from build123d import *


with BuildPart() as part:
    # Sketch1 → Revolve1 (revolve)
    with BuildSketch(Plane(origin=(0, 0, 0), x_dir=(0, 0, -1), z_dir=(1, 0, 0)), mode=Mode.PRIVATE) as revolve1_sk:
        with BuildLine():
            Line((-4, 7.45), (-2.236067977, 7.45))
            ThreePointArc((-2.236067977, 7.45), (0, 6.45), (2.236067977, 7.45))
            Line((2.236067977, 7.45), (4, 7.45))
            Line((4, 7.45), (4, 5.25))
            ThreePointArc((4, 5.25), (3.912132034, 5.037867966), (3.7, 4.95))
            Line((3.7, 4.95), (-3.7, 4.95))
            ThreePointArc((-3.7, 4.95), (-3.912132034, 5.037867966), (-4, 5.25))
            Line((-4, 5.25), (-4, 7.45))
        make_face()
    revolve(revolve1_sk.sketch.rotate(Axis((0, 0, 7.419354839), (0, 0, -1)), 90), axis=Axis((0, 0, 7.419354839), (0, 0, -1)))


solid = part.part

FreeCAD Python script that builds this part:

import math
import FreeCAD as App
import Part
import Sketcher
from FreeCAD import Vector

doc = App.newDocument("Part")
body = doc.addObject("PartDesign::Body", "Body")

# Sketch on YZ plane
sketch1 = body.newObject("Sketcher::SketchObject", "Sketch")
sketch1.AttachmentSupport = (doc.getObject("YZ_Plane"), [""])
sketch1.MapMode = "FlatFace"
sketch1.addGeometry(Part.LineSegment(Vector(7.45, 2.24, 0), Vector(7.45, 4, 0)), False)
sketch1.addGeometry(Part.LineSegment(Vector(7.45, 4, 0), Vector(5.25, 4, 0)), False)
sketch1.addGeometry(Part.ArcOfCircle(Part.Circle(Vector(5.25, 3.7, 0), Vector(0, 0, 1), 0.3), math.radians(90), math.radians(180)), False)
sketch1.addGeometry(Part.LineSegment(Vector(4.95, 3.7, 0), Vector(4.95, -3.7, 0)), False)
sketch1.addGeometry(Part.ArcOfCircle(Part.Circle(Vector(5.25, -3.7, 0), Vector(0, 0, 1), 0.3), math.radians(-180), math.radians(-90)), False)
sketch1.addGeometry(Part.LineSegment(Vector(5.25, -4, 0), Vector(7.45, -4, 0)), False)
sketch1.addGeometry(Part.LineSegment(Vector(7.45, -4, 0), Vector(7.45, -2.24, 0)), False)
sketch1.addGeometry(Part.ArcOfCircle(Part.Circle(Vector(9.45, 0, 0), Vector(0, 0, 1), 3), math.radians(132), math.radians(228)), False)
sketch1.addConstraint(Sketcher.Constraint("Coincident", 0, 2, 1, 1))
sketch1.addConstraint(Sketcher.Constraint("Tangent", 1, 2, 2, 1))
sketch1.addConstraint(Sketcher.Constraint("Tangent", 2, 2, 3, 1))
sketch1.addConstraint(Sketcher.Constraint("Tangent", 3, 2, 4, 1))
sketch1.addConstraint(Sketcher.Constraint("Tangent", 4, 2, 5, 1))
sketch1.addConstraint(Sketcher.Constraint("Coincident", 5, 2, 6, 1))
sketch1.addConstraint(Sketcher.Constraint("Coincident", 6, 2, 7, 2))
sketch1.addConstraint(Sketcher.Constraint("Coincident", 7, 1, 0, 1))
sketch1.addConstraint(Sketcher.Constraint("Vertical", 0))
sketch1.addConstraint(Sketcher.Constraint("Horizontal", 1))
sketch1.addConstraint(Sketcher.Constraint("Vertical", 3))
sketch1.addConstraint(Sketcher.Constraint("Horizontal", 5))
sketch1.addConstraint(Sketcher.Constraint("Vertical", 6))
sketch1.addConstraint(Sketcher.Constraint("Equal", 2, 4))
sketch1.addConstraint(Sketcher.Constraint("Symmetric", 0, 2, 5, 2, -1))
sketch1.addConstraint(Sketcher.Constraint("PointOnObject", 7, 3, -1))
sketch1.addConstraint(Sketcher.Constraint("Radius", 7, 3.0))
sketch1.addConstraint(Sketcher.Constraint("Radius", 2, 0.3))
sketch1.addConstraint(Sketcher.Constraint("DistanceX", 1, 2, 1, 1, 2.2))
sketch1.addConstraint(Sketcher.Constraint("DistanceY", 3, 2, 3, 1, 7.4))
sketch1.addConstraint(Sketcher.Constraint("DistanceX", 0, 2, 7, 3, 2.0))
sketch1.addConstraint(Sketcher.Constraint("DistanceX", -1, 1, 2, 3, 5.25))
revolution = body.newObject("PartDesign::Revolution", "Revolution")
revolution.Profile = sketch1
revolution.ReferenceAxis = (sketch1, ["V_Axis"])
revolution.Angle = 360

doc.recompute()
